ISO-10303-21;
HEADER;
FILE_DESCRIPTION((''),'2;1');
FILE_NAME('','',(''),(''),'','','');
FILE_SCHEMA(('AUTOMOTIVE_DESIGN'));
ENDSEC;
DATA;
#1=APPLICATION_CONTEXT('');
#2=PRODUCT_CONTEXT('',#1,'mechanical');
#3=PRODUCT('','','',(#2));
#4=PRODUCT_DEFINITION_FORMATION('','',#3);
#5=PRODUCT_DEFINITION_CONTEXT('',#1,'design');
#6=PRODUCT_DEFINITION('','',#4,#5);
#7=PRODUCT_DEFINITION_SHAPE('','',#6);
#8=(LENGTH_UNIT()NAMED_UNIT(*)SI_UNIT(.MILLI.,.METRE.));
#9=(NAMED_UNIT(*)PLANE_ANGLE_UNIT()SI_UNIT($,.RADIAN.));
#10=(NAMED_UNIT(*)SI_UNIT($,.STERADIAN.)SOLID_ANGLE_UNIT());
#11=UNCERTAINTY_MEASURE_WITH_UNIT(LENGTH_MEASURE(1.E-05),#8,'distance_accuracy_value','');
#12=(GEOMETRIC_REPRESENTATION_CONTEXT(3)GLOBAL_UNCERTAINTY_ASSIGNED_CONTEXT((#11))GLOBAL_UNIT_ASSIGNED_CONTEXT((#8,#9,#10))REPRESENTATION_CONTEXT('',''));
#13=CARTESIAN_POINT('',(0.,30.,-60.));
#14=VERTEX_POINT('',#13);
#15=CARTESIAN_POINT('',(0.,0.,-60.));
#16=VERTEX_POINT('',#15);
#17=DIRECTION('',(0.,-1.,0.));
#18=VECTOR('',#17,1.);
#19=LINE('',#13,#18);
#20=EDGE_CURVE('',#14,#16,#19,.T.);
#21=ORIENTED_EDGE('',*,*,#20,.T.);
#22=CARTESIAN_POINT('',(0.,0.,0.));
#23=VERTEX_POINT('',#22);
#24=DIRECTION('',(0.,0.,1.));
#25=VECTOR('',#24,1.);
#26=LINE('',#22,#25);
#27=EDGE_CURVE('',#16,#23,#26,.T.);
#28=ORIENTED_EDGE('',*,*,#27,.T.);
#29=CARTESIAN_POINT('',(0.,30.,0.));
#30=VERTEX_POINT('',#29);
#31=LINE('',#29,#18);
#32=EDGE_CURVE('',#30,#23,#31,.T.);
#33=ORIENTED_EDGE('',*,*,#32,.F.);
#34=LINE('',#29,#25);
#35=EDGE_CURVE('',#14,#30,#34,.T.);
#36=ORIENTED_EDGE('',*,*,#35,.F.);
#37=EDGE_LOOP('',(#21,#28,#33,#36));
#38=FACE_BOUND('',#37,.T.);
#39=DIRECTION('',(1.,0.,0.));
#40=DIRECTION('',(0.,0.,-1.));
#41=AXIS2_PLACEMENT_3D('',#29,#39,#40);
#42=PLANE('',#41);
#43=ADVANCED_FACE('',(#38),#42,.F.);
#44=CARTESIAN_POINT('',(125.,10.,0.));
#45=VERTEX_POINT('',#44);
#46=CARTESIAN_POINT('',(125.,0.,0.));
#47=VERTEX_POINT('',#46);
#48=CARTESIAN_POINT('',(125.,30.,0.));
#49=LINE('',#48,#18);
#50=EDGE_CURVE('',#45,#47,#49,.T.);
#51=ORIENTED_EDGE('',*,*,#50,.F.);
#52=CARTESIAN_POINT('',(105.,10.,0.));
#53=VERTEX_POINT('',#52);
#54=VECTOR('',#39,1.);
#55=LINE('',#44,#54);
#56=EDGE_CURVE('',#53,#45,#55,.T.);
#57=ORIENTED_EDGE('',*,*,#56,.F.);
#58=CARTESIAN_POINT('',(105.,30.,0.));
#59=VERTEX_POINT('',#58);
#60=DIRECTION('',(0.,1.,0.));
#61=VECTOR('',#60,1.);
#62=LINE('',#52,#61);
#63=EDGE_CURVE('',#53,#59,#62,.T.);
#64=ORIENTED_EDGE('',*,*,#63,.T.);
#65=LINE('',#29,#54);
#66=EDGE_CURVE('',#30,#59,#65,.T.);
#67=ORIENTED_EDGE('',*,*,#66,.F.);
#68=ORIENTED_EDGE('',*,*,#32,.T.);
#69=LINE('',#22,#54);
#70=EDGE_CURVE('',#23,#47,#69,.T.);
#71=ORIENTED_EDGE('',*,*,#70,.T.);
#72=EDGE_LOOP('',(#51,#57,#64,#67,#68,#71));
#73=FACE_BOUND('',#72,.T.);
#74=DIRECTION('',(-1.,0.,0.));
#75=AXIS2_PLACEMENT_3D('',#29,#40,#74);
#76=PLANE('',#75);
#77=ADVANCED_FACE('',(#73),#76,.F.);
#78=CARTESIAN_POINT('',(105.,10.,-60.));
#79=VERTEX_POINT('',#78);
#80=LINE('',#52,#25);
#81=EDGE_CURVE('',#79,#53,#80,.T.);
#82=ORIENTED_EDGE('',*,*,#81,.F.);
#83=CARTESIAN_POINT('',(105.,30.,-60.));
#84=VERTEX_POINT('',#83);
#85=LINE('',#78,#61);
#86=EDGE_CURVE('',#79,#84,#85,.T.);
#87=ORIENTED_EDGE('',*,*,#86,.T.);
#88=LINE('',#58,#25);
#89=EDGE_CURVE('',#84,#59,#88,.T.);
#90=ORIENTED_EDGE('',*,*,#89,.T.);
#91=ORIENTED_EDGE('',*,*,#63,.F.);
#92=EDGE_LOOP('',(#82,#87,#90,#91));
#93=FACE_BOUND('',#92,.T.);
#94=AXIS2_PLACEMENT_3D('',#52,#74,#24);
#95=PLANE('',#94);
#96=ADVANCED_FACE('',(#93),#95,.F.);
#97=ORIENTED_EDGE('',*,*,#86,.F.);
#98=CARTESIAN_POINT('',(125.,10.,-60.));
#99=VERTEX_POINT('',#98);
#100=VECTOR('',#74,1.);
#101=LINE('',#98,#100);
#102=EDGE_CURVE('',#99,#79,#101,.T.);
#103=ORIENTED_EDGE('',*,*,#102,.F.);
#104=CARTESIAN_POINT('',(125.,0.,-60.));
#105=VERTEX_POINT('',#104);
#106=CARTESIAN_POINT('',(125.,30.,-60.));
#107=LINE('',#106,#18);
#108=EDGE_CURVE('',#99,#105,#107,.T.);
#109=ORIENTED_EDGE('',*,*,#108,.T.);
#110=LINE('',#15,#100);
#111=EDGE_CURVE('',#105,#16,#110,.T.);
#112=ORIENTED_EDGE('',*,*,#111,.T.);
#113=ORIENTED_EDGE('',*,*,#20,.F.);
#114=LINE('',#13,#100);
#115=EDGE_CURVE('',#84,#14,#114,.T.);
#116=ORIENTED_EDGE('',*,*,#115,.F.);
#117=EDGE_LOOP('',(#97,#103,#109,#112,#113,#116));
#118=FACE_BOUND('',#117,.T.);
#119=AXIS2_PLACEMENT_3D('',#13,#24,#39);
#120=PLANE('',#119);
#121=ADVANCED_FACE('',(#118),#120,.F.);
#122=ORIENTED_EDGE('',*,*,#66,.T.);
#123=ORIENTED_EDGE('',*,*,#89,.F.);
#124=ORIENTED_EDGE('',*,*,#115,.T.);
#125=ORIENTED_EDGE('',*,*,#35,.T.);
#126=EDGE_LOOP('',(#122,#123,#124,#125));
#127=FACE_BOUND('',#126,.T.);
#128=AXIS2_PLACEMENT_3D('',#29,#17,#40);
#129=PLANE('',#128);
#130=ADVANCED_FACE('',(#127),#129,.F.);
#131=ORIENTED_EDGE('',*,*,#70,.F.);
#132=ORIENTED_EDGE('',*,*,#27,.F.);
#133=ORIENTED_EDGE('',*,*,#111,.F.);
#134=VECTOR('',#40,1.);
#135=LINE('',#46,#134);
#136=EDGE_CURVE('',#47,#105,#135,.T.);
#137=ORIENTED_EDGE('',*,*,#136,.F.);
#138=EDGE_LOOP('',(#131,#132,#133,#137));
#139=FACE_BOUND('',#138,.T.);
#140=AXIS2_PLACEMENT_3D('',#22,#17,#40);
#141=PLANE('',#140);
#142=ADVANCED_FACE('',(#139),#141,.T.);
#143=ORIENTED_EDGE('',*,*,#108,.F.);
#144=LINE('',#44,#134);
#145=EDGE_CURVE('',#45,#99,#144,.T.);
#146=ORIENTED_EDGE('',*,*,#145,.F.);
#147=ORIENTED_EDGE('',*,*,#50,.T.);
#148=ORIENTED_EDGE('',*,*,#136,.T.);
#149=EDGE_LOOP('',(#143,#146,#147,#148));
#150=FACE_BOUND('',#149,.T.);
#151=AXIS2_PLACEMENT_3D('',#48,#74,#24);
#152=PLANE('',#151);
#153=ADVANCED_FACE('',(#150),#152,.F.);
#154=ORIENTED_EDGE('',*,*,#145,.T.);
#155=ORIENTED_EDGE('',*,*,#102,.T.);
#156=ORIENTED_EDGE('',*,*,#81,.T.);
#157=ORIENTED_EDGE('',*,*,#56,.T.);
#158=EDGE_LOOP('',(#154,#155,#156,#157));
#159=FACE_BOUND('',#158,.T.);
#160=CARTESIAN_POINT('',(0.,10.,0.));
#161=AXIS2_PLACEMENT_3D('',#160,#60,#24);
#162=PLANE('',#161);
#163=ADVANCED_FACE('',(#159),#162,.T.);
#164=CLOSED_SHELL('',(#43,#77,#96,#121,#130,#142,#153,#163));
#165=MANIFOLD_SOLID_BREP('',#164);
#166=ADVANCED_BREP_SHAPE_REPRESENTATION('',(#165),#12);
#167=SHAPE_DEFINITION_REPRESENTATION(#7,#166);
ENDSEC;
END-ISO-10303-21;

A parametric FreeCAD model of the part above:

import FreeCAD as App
import Part
import Sketcher


def add_polygon(sketch, points):
    """Adds a closed chain of lines whose ends are joined by coincident constraints."""
    first, n = sketch.GeometryCount, len(points)
    for a, b in zip(points, points[1:] + points[:1]):
        sketch.addGeometry(Part.LineSegment(App.Vector(*a, 0), App.Vector(*b, 0)), False)
    for i in range(n):
        sketch.addConstraint(Sketcher.Constraint("Coincident", first + i, 2, first + (i + 1) % n, 1))

doc = App.newDocument("Part")
body = doc.addObject("PartDesign::Body", "Body")

# Sketch on XZ plane
sketch1 = body.newObject("Sketcher::SketchObject", "Sketch")
sketch1.AttachmentSupport = (doc.getObject("XZ_Plane"), [""])
sketch1.MapMode = "FlatFace"
add_polygon(sketch1, [(0, -60), (0, 0), (125, 0), (125, -60)])  # lines 0-3
sketch1.addConstraint([
    Sketcher.Constraint("Vertical", 0),
    Sketcher.Constraint("Horizontal", 1),
    Sketcher.Constraint("Vertical", 2),
    Sketcher.Constraint("Horizontal", 3),
    Sketcher.Constraint("Coincident", 0, 2, -1, 1),
    Sketcher.Constraint("DistanceX", 1, 1, 1, 2, 125.0),
    Sketcher.Constraint("DistanceY", 0, 1, 0, 2, 60.0),
])
pad1 = body.newObject("PartDesign::Pad", "Pad")
pad1.Profile = sketch1
pad1.Length = 30
pad1.Reversed = True

# Sketch on XZ plane
sketch2 = body.newObject("Sketcher::SketchObject", "Sketch001")
sketch2.AttachmentSupport = (doc.getObject("XZ_Plane"), [""])
sketch2.MapMode = "FlatFace"
sketch2.AttachmentOffset = App.Placement(App.Vector(0, 0, -30), App.Rotation())
add_polygon(sketch2, [(105, -60), (105, 0), (125, 0), (125, -60)])  # lines 0-3
sketch2.addConstraint([
    Sketcher.Constraint("Vertical", 0),
    Sketcher.Constraint("Horizontal", 1),
    Sketcher.Constraint("Vertical", 2),
    Sketcher.Constraint("Horizontal", 3),
    Sketcher.Constraint("PointOnObject", 0, 2, -1),
    Sketcher.Constraint("DistanceX", 1, 1, 1, 2, 20.0),
    Sketcher.Constraint("DistanceY", 0, 1, 0, 2, 60.0),
    Sketcher.Constraint("DistanceX", -1, 1, 0, 2, 105.0),
])
pocket1 = body.newObject("PartDesign::Pocket", "Pocket")
pocket1.Profile = sketch2
pocket1.Length = 20
pocket1.Reversed = True

doc.recompute()
